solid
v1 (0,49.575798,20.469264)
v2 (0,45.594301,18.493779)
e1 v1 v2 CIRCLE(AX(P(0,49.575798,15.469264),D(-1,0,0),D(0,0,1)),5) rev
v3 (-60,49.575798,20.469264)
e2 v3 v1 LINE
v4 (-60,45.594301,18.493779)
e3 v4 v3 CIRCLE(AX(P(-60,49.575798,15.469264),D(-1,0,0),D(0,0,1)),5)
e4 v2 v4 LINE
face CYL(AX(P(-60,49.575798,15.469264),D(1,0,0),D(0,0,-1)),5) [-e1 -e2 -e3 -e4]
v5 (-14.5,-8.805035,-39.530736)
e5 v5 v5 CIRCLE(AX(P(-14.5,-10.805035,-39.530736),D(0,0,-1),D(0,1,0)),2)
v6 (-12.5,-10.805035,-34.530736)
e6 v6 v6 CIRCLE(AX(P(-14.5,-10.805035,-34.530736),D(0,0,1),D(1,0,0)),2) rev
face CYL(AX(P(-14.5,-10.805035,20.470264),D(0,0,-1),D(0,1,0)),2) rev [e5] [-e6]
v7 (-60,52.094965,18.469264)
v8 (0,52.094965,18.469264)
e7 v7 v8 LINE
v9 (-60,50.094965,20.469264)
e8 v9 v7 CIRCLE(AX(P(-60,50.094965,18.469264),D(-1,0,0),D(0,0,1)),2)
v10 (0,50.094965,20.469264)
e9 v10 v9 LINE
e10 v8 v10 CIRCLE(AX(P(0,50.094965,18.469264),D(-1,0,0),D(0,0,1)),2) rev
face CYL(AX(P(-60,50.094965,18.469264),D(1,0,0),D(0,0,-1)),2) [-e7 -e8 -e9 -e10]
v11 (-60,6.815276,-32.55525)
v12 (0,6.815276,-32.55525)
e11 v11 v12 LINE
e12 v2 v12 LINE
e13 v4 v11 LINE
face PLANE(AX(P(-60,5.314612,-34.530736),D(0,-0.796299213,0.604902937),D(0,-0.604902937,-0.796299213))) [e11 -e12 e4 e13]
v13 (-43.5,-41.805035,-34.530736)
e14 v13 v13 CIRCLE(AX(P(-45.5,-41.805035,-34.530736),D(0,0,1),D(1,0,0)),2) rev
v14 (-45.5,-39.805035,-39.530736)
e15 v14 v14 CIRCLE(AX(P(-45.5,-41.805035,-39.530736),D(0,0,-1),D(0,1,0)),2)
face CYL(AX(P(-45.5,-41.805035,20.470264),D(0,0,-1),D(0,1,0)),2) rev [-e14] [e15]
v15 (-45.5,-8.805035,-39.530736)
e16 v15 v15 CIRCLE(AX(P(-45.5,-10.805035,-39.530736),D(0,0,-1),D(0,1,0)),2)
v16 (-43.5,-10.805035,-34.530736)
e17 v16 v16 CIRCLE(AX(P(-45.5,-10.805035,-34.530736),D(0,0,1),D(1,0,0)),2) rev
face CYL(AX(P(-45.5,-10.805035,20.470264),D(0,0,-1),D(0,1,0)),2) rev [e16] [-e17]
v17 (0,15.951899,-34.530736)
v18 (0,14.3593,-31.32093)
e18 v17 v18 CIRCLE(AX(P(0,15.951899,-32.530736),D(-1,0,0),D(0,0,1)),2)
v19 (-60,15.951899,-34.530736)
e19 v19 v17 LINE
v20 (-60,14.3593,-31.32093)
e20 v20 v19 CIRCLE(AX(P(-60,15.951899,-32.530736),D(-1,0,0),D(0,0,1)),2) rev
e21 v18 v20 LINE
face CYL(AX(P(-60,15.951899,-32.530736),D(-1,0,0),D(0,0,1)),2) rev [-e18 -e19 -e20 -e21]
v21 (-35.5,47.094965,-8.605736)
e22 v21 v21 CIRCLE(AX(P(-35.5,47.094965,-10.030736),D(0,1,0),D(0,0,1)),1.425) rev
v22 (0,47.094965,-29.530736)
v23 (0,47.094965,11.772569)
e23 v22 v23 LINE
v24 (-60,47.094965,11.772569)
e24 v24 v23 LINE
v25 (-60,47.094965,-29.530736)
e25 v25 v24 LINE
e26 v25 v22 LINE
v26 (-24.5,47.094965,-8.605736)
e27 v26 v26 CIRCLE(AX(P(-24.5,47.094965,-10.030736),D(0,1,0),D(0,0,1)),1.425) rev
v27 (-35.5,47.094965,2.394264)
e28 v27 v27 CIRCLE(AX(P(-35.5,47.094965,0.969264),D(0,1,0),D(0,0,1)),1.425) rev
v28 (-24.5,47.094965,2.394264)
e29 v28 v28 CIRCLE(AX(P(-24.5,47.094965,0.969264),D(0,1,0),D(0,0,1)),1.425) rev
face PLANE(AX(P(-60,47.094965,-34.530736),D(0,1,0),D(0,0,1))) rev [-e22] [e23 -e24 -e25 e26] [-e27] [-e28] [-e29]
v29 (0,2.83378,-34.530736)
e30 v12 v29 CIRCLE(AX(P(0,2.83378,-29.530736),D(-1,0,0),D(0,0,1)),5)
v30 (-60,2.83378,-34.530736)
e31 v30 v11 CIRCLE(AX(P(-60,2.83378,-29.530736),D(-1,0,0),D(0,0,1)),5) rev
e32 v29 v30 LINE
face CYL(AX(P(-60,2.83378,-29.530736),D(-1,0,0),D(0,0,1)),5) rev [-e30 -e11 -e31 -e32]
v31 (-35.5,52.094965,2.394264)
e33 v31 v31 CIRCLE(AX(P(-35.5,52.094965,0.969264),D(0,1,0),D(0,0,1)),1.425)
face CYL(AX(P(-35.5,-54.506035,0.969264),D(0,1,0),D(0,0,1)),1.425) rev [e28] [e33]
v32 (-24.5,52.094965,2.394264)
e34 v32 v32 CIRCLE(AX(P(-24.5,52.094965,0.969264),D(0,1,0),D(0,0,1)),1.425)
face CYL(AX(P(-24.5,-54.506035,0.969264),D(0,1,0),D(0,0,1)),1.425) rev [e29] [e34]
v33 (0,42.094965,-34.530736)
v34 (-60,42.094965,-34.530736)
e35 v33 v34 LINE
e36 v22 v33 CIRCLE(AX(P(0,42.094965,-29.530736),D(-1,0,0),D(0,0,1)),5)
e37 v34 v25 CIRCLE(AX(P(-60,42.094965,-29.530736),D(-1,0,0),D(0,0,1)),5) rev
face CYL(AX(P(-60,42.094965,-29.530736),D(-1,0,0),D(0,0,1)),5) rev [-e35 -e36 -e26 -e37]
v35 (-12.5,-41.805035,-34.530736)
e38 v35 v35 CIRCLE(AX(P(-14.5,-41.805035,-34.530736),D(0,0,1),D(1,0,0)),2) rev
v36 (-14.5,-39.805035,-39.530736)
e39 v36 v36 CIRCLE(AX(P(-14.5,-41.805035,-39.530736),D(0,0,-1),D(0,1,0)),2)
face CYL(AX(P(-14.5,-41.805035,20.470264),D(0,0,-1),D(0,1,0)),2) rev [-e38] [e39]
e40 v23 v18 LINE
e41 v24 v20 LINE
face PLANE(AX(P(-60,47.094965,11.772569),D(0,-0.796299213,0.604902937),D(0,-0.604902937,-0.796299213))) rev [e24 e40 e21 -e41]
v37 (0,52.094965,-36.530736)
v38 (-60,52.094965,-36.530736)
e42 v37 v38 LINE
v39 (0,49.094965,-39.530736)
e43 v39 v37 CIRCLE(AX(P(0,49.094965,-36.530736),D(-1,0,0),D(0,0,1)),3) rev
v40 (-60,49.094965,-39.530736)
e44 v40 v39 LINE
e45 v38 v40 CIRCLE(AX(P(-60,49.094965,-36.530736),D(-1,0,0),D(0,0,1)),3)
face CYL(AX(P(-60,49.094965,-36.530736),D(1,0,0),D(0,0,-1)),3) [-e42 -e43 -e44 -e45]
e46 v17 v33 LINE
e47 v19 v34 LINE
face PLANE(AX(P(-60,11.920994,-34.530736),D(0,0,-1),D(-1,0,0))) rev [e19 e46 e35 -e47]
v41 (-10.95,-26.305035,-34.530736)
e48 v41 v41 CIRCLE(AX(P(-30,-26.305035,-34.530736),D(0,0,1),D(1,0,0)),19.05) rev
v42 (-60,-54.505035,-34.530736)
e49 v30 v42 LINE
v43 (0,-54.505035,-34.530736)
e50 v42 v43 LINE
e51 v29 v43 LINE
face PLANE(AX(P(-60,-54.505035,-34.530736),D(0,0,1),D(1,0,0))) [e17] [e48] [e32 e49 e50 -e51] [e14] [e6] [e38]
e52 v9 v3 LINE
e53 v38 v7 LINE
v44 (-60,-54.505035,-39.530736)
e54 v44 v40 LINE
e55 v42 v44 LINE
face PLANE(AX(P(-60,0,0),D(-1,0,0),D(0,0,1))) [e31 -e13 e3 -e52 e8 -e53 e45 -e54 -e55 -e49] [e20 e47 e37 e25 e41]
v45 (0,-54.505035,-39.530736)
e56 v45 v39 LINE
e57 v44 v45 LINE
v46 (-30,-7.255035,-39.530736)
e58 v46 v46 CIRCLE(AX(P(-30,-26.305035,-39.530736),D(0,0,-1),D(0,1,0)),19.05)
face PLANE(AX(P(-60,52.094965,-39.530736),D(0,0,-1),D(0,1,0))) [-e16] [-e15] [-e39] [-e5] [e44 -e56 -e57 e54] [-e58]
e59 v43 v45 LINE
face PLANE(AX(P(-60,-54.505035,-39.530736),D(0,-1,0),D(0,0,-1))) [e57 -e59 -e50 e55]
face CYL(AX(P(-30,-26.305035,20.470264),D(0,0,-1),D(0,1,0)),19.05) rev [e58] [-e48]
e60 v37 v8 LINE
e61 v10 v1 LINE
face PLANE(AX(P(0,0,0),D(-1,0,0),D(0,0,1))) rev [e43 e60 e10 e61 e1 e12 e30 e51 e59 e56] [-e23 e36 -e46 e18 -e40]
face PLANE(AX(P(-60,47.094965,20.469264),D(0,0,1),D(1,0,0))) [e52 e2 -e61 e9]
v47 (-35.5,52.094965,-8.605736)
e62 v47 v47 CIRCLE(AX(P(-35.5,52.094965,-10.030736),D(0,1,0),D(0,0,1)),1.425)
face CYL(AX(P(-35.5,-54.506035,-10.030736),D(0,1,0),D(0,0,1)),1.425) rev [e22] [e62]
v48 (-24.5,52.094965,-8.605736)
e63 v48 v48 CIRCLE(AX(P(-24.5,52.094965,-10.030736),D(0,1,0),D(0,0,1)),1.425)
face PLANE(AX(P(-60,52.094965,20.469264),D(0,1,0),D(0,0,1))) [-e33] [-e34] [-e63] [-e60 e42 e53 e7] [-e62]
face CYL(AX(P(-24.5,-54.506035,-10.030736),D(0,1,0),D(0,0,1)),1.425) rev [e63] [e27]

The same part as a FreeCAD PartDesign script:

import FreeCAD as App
import Part
import Sketcher

V = App.Vector
Q = App.Units.Quantity


def edges_at(feature, points):
    """Names of the edges that pass closest to the given points."""
    edges = feature.Shape.Edges
    near = lambda p: min(range(len(edges)), key=lambda i: edges[i].distToShape(Part.Vertex(*p))[0])
    return sorted({f"Edge{near(p) + 1}" for p in points})


def add_polygon(sketch, points):
    """Adds a closed chain of lines whose ends are joined by coincident constraints."""
    first, n = sketch.GeometryCount, len(points)
    for a, b in zip(points, points[1:] + points[:1]):
        sketch.addGeometry(Part.LineSegment(App.Vector(*a, 0), App.Vector(*b, 0)), False)
    for i in range(n):
        sketch.addConstraint(Sketcher.Constraint("Coincident", first + i, 2, first + (i + 1) % n, 1))

doc = App.newDocument("Part")
params = doc.addObject("Spreadsheet::Sheet", "Params")
for row, (alias, value) in enumerate([
    ("sketch1_width", "5 mm"),
    ("sketch1_height", "60 mm"),
    ("sketch1_width2", "106.6 mm"),
    ("pad1_length", "60 mm"),
    ("sketch2_diameter", "2.85 mm"),
    ("sketch3_diameter", "2.85 mm"),
    ("sketch4_diameter", "2.85 mm"),
    ("sketch5_diameter", "2.85 mm"),
    ("sketch6_diameter", "4 mm"),
    ("sketch7_diameter", "4 mm"),
    ("sketch8_diameter", "4 mm"),
    ("sketch9_diameter", "4 mm"),
    ("sketch10_diameter", "38.1 mm"),
    ("fillet_radius", "5 mm"),
    ("fillet2_radius", "5 mm"),
    ("fillet3_radius", "2 mm"),
    ("fillet4_radius", "2 mm"),
    ("fillet5_radius", "3 mm"),
    ("fillet6_radius", "5 mm"),
], start=1):
    params.set(f"A{row}", alias)
    params.set(f"B{row}", "=" + value)
    params.setAlias(f"B{row}", alias)

body = doc.addObject("PartDesign::Body", "Body")

sketch1 = body.newObject("Sketcher::SketchObject", "Sketch")
sketch1.AttachmentSupport = (doc.getObject("YZ_Plane"), [""])
sketch1.MapMode = "FlatFace"
add_polygon(sketch1, [(52, 20), (47, 20), (5, -35), (-55, -35), (-55, -40), (52, -40)])
add_polygon(sketch1, [(47, 12), (47, -35), (12, -35)])
sketch1.addConstraint([
    Sketcher.Constraint("Horizontal", 0),
    Sketcher.Constraint("Horizontal", 2),
    Sketcher.Constraint("Vertical", 3),
    Sketcher.Constraint("Horizontal", 4),
    Sketcher.Constraint("Vertical", 5),
    Sketcher.Constraint("Vertical", 6),
    Sketcher.Constraint("Horizontal", 7),
    Sketcher.Constraint("Parallel", 1, 8),
    Sketcher.Constraint("Horizontal", 2, 2, 6, 2),
    Sketcher.Constraint("Vertical", 0, 2, 6, 2),
    Sketcher.Constraint("Equal", 0, 3),
    Sketcher.Constraint("DistanceX", 0, 2, 0, 1, Q("5 mm")),
    Sketcher.Constraint("DistanceY", 5, 1, 5, 2, Q("60 mm")),
    Sketcher.Constraint("DistanceX", 4, 1, 4, 2, Q("106.6 mm")),
    Sketcher.Constraint("DistanceX", 7, 2, 7, 1, Q("35.17397 mm")),
    Sketcher.Constraint("DistanceX", 2, 2, 2, 1, Q("59.819648 mm")),
    Sketcher.Constraint("DistanceY", -1, 1, 8, 2, Q("11.772569 mm")),
    Sketcher.Constraint("DistanceX", -1, 1, 0, 2, Q("47.094965 mm")),
])
sketch1.setExpression("Constraints[20]", "Params.sketch1_width")
sketch1.setExpression("Constraints[21]", "Params.sketch1_height")
sketch1.setExpression("Constraints[22]", "Params.sketch1_width2")
pad1 = body.newObject("PartDesign::Pad", "Pad")
pad1.Profile = sketch1
pad1.setExpression("Length", "Params.pad1_length")
pad1.Reversed = True

sketch2 = body.newObject("Sketcher::SketchObject", "Sketch001")
sketch2.AttachmentSupport = (doc.getObject("XZ_Plane"), [""])
sketch2.MapMode = "FlatFace"
sketch2.AttachmentOffset = App.Placement(V(0, 0, -52.094965), App.Rotation())
sketch2.addGeometry(Part.Circle(V(-35.5, -10, 0), V(0, 0, 1), 1.4), False)
sketch2.addConstraint([
    Sketcher.Constraint("Diameter", 0, Q("2.85 mm")),
    Sketcher.Constraint("DistanceX", 0, 3, -1, 1, Q("35.5 mm")),
    Sketcher.Constraint("DistanceY", 0, 3, -1, 1, Q("10.030736 mm")),
])
sketch2.setExpression("Constraints[0]", "Params.sketch2_diameter")
pocket1 = body.newObject("PartDesign::Pocket", "Pocket")
pocket1.Profile = sketch2
pocket1.Type = "UpToFirst"
pocket1.Reversed = True

sketch3 = body.newObject("Sketcher::SketchObject", "Sketch002")
sketch3.AttachmentSupport = (doc.getObject("XZ_Plane"), [""])
sketch3.MapMode = "FlatFace"
sketch3.AttachmentOffset = App.Placement(V(0, 0, -52.094965), App.Rotation())
sketch3.addGeometry(Part.Circle(V(-24.5, -10, 0), V(0, 0, 1), 1.4), False)
sketch3.addConstraint([
    Sketcher.Constraint("Diameter", 0, Q("2.85 mm")),
    Sketcher.Constraint("DistanceX", 0, 3, -1, 1, Q("24.5 mm")),
    Sketcher.Constraint("DistanceY", 0, 3, -1, 1, Q("10.030736 mm")),
])
sketch3.setExpression("Constraints[0]", "Params.sketch3_diameter")
pocket2 = body.newObject("PartDesign::Pocket", "Pocket001")
pocket2.Profile = sketch3
pocket2.Type = "UpToFirst"
pocket2.Reversed = True

sketch4 = body.newObject("Sketcher::SketchObject", "Sketch003")
sketch4.AttachmentSupport = (doc.getObject("XZ_Plane"), [""])
sketch4.MapMode = "FlatFace"
sketch4.AttachmentOffset = App.Placement(V(0, 0, -52.094965), App.Rotation())
sketch4.addGeometry(Part.Circle(V(-24.5, 1, 0), V(0, 0, 1), 1.4), False)
sketch4.addConstraint([
    Sketcher.Constraint("Diameter", 0, Q("2.85 mm")),
    Sketcher.Constraint("DistanceX", 0, 3, -1, 1, Q("24.5 mm")),
    Sketcher.Constraint("DistanceY", -1, 1, 0, 3, Q("0.969264 mm")),
])
sketch4.setExpression("Constraints[0]", "Params.sketch4_diameter")
pocket3 = body.newObject("PartDesign::Pocket", "Pocket002")
pocket3.Profile = sketch4
pocket3.Type = "UpToFirst"
pocket3.Reversed = True

sketch5 = body.newObject("Sketcher::SketchObject", "Sketch004")
sketch5.AttachmentSupport = (doc.getObject("XZ_Plane"), [""])
sketch5.MapMode = "FlatFace"
sketch5.AttachmentOffset = App.Placement(V(0, 0, -52.094965), App.Rotation())
sketch5.addGeometry(Part.Circle(V(-35.5, 1, 0), V(0, 0, 1), 1.4), False)
sketch5.addConstraint([
    Sketcher.Constraint("Diameter", 0, Q("2.85 mm")),
    Sketcher.Constraint("DistanceX", 0, 3, -1, 1, Q("35.5 mm")),
    Sketcher.Constraint("DistanceY", -1, 1, 0, 3, Q("0.969264 mm")),
])
sketch5.setExpression("Constraints[0]", "Params.sketch5_diameter")
pocket4 = body.newObject("PartDesign::Pocket", "Pocket003")
pocket4.Profile = sketch5
pocket4.Type = "UpToFirst"
pocket4.Reversed = True

sketch6 = body.newObject("Sketcher::SketchObject", "Sketch005")
sketch6.AttachmentSupport = (doc.getObject("XY_Plane"), [""])
sketch6.MapMode = "FlatFace"
sketch6.AttachmentOffset = App.Placement(V(0, 0, -39.530736), App.Rotation())
sketch6.addGeometry(Part.Circle(V(-14.5, -10.8, 0), V(0, 0, 1), 2), False)
sketch6.addConstraint([
    Sketcher.Constraint("Diameter", 0, Q("4 mm")),
    Sketcher.Constraint("DistanceX", 0, 3, -1, 1, Q("14.5 mm")),
    Sketcher.Constraint("DistanceY", 0, 3, -1, 1, Q("10.805035 mm")),
])
sketch6.setExpression("Constraints[0]", "Params.sketch6_diameter")
pocket5 = body.newObject("PartDesign::Pocket", "Pocket004")
pocket5.Profile = sketch6
pocket5.Type = "UpToFirst"
pocket5.Reversed = True

sketch7 = body.newObject("Sketcher::SketchObject", "Sketch006")
sketch7.AttachmentSupport = (doc.getObject("XY_Plane"), [""])
sketch7.MapMode = "FlatFace"
sketch7.AttachmentOffset = App.Placement(V(0, 0, -39.530736), App.Rotation())
sketch7.addGeometry(Part.Circle(V(-45.5, -10.8, 0), V(0, 0, 1), 2), False)
sketch7.addConstraint([
    Sketcher.Constraint("Diameter", 0, Q("4 mm")),
    Sketcher.Constraint("DistanceX", 0, 3, -1, 1, Q("45.5 mm")),
    Sketcher.Constraint("DistanceY", 0, 3, -1, 1, Q("10.805035 mm")),
])
sketch7.setExpression("Constraints[0]", "Params.sketch7_diameter")
pocket6 = body.newObject("PartDesign::Pocket", "Pocket005")
pocket6.Profile = sketch7
pocket6.Type = "UpToFirst"
pocket6.Reversed = True

sketch8 = body.newObject("Sketcher::SketchObject", "Sketch007")
sketch8.AttachmentSupport = (doc.getObject("XY_Plane"), [""])
sketch8.MapMode = "FlatFace"
sketch8.AttachmentOffset = App.Placement(V(0, 0, -39.530736), App.Rotation())
sketch8.addGeometry(Part.Circle(V(-45.5, -41.8, 0), V(0, 0, 1), 2), False)
sketch8.addConstraint([
    Sketcher.Constraint("Diameter", 0, Q("4 mm")),
    Sketcher.Constraint("DistanceX", 0, 3, -1, 1, Q("45.5 mm")),
    Sketcher.Constraint("DistanceY", 0, 3, -1, 1, Q("41.805035 mm")),
])
sketch8.setExpression("Constraints[0]", "Params.sketch8_diameter")
pocket7 = body.newObject("PartDesign::Pocket", "Pocket006")
pocket7.Profile = sketch8
pocket7.Type = "UpToFirst"
pocket7.Reversed = True

sketch9 = body.newObject("Sketcher::SketchObject", "Sketch008")
sketch9.AttachmentSupport = (doc.getObject("XY_Plane"), [""])
sketch9.MapMode = "FlatFace"
sketch9.AttachmentOffset = App.Placement(V(0, 0, -39.530736), App.Rotation())
sketch9.addGeometry(Part.Circle(V(-14.5, -41.8, 0), V(0, 0, 1), 2), False)
sketch9.addConstraint([
    Sketcher.Constraint("Diameter", 0, Q("4 mm")),
    Sketcher.Constraint("DistanceX", 0, 3, -1, 1, Q("14.5 mm")),
    Sketcher.Constraint("DistanceY", 0, 3, -1, 1, Q("41.805035 mm")),
])
sketch9.setExpression("Constraints[0]", "Params.sketch9_diameter")
pocket8 = body.newObject("PartDesign::Pocket", "Pocket007")
pocket8.Profile = sketch9
pocket8.Type = "UpToFirst"
pocket8.Reversed = True

sketch10 = body.newObject("Sketcher::SketchObject", "Sketch009")
sketch10.AttachmentSupport = (doc.getObject("XY_Plane"), [""])
sketch10.MapMode = "FlatFace"
sketch10.AttachmentOffset = App.Placement(V(0, 0, -39.530736), App.Rotation())
sketch10.addGeometry(Part.Circle(V(-30, -26, 0), V(0, 0, 1), 19), False)
sketch10.addConstraint([
    Sketcher.Constraint("Diameter", 0, Q("38.1 mm")),
    Sketcher.Constraint("DistanceX", 0, 3, -1, 1, Q("30 mm")),
    Sketcher.Constraint("DistanceY", 0, 3, -1, 1, Q("26.305035 mm")),
])
sketch10.setExpression("Constraints[0]", "Params.sketch10_diameter")
pocket9 = body.newObject("PartDesign::Pocket", "Pocket008")
pocket9.Profile = sketch10
pocket9.Type = "UpToFirst"
pocket9.Reversed = True
doc.recompute()

fillet = body.newObject("PartDesign::Fillet", "Fillet")
fillet.Base = (pocket9, edges_at(pocket9, [(-30, 47.095, -34.531)]))
fillet.setExpression("Radius", "Params.fillet_radius")
doc.recompute()

fillet2 = body.newObject("PartDesign::Fillet", "Fillet001")
fillet2.Base = (fillet, edges_at(fillet, [(-30, 47.095, 20.469)]))
fillet2.setExpression("Radius", "Params.fillet2_radius")
doc.recompute()

fillet3 = body.newObject("PartDesign::Fillet", "Fillet002")
fillet3.Base = (fillet2, edges_at(fillet2, [(-30, 11.921, -34.531)]))
fillet3.setExpression("Radius", "Params.fillet3_radius")
doc.recompute()

fillet4 = body.newObject("PartDesign::Fillet", "Fillet003")
fillet4.Base = (fillet3, edges_at(fillet3, [(-30, 52.095, 20.469)]))
fillet4.setExpression("Radius", "Params.fillet4_radius")
doc.recompute()

fillet5 = body.newObject("PartDesign::Fillet", "Fillet004")
fillet5.Base = (fillet4, edges_at(fillet4, [(-30, 52.095, -39.531)]))
fillet5.setExpression("Radius", "Params.fillet5_radius")
doc.recompute()

fillet6 = body.newObject("PartDesign::Fillet", "Fillet005")
fillet6.Base = (fillet5, edges_at(fillet5, [(-30, 5.315, -34.531)]))
fillet6.setExpression("Radius", "Params.fillet6_radius")

doc.recompute()
